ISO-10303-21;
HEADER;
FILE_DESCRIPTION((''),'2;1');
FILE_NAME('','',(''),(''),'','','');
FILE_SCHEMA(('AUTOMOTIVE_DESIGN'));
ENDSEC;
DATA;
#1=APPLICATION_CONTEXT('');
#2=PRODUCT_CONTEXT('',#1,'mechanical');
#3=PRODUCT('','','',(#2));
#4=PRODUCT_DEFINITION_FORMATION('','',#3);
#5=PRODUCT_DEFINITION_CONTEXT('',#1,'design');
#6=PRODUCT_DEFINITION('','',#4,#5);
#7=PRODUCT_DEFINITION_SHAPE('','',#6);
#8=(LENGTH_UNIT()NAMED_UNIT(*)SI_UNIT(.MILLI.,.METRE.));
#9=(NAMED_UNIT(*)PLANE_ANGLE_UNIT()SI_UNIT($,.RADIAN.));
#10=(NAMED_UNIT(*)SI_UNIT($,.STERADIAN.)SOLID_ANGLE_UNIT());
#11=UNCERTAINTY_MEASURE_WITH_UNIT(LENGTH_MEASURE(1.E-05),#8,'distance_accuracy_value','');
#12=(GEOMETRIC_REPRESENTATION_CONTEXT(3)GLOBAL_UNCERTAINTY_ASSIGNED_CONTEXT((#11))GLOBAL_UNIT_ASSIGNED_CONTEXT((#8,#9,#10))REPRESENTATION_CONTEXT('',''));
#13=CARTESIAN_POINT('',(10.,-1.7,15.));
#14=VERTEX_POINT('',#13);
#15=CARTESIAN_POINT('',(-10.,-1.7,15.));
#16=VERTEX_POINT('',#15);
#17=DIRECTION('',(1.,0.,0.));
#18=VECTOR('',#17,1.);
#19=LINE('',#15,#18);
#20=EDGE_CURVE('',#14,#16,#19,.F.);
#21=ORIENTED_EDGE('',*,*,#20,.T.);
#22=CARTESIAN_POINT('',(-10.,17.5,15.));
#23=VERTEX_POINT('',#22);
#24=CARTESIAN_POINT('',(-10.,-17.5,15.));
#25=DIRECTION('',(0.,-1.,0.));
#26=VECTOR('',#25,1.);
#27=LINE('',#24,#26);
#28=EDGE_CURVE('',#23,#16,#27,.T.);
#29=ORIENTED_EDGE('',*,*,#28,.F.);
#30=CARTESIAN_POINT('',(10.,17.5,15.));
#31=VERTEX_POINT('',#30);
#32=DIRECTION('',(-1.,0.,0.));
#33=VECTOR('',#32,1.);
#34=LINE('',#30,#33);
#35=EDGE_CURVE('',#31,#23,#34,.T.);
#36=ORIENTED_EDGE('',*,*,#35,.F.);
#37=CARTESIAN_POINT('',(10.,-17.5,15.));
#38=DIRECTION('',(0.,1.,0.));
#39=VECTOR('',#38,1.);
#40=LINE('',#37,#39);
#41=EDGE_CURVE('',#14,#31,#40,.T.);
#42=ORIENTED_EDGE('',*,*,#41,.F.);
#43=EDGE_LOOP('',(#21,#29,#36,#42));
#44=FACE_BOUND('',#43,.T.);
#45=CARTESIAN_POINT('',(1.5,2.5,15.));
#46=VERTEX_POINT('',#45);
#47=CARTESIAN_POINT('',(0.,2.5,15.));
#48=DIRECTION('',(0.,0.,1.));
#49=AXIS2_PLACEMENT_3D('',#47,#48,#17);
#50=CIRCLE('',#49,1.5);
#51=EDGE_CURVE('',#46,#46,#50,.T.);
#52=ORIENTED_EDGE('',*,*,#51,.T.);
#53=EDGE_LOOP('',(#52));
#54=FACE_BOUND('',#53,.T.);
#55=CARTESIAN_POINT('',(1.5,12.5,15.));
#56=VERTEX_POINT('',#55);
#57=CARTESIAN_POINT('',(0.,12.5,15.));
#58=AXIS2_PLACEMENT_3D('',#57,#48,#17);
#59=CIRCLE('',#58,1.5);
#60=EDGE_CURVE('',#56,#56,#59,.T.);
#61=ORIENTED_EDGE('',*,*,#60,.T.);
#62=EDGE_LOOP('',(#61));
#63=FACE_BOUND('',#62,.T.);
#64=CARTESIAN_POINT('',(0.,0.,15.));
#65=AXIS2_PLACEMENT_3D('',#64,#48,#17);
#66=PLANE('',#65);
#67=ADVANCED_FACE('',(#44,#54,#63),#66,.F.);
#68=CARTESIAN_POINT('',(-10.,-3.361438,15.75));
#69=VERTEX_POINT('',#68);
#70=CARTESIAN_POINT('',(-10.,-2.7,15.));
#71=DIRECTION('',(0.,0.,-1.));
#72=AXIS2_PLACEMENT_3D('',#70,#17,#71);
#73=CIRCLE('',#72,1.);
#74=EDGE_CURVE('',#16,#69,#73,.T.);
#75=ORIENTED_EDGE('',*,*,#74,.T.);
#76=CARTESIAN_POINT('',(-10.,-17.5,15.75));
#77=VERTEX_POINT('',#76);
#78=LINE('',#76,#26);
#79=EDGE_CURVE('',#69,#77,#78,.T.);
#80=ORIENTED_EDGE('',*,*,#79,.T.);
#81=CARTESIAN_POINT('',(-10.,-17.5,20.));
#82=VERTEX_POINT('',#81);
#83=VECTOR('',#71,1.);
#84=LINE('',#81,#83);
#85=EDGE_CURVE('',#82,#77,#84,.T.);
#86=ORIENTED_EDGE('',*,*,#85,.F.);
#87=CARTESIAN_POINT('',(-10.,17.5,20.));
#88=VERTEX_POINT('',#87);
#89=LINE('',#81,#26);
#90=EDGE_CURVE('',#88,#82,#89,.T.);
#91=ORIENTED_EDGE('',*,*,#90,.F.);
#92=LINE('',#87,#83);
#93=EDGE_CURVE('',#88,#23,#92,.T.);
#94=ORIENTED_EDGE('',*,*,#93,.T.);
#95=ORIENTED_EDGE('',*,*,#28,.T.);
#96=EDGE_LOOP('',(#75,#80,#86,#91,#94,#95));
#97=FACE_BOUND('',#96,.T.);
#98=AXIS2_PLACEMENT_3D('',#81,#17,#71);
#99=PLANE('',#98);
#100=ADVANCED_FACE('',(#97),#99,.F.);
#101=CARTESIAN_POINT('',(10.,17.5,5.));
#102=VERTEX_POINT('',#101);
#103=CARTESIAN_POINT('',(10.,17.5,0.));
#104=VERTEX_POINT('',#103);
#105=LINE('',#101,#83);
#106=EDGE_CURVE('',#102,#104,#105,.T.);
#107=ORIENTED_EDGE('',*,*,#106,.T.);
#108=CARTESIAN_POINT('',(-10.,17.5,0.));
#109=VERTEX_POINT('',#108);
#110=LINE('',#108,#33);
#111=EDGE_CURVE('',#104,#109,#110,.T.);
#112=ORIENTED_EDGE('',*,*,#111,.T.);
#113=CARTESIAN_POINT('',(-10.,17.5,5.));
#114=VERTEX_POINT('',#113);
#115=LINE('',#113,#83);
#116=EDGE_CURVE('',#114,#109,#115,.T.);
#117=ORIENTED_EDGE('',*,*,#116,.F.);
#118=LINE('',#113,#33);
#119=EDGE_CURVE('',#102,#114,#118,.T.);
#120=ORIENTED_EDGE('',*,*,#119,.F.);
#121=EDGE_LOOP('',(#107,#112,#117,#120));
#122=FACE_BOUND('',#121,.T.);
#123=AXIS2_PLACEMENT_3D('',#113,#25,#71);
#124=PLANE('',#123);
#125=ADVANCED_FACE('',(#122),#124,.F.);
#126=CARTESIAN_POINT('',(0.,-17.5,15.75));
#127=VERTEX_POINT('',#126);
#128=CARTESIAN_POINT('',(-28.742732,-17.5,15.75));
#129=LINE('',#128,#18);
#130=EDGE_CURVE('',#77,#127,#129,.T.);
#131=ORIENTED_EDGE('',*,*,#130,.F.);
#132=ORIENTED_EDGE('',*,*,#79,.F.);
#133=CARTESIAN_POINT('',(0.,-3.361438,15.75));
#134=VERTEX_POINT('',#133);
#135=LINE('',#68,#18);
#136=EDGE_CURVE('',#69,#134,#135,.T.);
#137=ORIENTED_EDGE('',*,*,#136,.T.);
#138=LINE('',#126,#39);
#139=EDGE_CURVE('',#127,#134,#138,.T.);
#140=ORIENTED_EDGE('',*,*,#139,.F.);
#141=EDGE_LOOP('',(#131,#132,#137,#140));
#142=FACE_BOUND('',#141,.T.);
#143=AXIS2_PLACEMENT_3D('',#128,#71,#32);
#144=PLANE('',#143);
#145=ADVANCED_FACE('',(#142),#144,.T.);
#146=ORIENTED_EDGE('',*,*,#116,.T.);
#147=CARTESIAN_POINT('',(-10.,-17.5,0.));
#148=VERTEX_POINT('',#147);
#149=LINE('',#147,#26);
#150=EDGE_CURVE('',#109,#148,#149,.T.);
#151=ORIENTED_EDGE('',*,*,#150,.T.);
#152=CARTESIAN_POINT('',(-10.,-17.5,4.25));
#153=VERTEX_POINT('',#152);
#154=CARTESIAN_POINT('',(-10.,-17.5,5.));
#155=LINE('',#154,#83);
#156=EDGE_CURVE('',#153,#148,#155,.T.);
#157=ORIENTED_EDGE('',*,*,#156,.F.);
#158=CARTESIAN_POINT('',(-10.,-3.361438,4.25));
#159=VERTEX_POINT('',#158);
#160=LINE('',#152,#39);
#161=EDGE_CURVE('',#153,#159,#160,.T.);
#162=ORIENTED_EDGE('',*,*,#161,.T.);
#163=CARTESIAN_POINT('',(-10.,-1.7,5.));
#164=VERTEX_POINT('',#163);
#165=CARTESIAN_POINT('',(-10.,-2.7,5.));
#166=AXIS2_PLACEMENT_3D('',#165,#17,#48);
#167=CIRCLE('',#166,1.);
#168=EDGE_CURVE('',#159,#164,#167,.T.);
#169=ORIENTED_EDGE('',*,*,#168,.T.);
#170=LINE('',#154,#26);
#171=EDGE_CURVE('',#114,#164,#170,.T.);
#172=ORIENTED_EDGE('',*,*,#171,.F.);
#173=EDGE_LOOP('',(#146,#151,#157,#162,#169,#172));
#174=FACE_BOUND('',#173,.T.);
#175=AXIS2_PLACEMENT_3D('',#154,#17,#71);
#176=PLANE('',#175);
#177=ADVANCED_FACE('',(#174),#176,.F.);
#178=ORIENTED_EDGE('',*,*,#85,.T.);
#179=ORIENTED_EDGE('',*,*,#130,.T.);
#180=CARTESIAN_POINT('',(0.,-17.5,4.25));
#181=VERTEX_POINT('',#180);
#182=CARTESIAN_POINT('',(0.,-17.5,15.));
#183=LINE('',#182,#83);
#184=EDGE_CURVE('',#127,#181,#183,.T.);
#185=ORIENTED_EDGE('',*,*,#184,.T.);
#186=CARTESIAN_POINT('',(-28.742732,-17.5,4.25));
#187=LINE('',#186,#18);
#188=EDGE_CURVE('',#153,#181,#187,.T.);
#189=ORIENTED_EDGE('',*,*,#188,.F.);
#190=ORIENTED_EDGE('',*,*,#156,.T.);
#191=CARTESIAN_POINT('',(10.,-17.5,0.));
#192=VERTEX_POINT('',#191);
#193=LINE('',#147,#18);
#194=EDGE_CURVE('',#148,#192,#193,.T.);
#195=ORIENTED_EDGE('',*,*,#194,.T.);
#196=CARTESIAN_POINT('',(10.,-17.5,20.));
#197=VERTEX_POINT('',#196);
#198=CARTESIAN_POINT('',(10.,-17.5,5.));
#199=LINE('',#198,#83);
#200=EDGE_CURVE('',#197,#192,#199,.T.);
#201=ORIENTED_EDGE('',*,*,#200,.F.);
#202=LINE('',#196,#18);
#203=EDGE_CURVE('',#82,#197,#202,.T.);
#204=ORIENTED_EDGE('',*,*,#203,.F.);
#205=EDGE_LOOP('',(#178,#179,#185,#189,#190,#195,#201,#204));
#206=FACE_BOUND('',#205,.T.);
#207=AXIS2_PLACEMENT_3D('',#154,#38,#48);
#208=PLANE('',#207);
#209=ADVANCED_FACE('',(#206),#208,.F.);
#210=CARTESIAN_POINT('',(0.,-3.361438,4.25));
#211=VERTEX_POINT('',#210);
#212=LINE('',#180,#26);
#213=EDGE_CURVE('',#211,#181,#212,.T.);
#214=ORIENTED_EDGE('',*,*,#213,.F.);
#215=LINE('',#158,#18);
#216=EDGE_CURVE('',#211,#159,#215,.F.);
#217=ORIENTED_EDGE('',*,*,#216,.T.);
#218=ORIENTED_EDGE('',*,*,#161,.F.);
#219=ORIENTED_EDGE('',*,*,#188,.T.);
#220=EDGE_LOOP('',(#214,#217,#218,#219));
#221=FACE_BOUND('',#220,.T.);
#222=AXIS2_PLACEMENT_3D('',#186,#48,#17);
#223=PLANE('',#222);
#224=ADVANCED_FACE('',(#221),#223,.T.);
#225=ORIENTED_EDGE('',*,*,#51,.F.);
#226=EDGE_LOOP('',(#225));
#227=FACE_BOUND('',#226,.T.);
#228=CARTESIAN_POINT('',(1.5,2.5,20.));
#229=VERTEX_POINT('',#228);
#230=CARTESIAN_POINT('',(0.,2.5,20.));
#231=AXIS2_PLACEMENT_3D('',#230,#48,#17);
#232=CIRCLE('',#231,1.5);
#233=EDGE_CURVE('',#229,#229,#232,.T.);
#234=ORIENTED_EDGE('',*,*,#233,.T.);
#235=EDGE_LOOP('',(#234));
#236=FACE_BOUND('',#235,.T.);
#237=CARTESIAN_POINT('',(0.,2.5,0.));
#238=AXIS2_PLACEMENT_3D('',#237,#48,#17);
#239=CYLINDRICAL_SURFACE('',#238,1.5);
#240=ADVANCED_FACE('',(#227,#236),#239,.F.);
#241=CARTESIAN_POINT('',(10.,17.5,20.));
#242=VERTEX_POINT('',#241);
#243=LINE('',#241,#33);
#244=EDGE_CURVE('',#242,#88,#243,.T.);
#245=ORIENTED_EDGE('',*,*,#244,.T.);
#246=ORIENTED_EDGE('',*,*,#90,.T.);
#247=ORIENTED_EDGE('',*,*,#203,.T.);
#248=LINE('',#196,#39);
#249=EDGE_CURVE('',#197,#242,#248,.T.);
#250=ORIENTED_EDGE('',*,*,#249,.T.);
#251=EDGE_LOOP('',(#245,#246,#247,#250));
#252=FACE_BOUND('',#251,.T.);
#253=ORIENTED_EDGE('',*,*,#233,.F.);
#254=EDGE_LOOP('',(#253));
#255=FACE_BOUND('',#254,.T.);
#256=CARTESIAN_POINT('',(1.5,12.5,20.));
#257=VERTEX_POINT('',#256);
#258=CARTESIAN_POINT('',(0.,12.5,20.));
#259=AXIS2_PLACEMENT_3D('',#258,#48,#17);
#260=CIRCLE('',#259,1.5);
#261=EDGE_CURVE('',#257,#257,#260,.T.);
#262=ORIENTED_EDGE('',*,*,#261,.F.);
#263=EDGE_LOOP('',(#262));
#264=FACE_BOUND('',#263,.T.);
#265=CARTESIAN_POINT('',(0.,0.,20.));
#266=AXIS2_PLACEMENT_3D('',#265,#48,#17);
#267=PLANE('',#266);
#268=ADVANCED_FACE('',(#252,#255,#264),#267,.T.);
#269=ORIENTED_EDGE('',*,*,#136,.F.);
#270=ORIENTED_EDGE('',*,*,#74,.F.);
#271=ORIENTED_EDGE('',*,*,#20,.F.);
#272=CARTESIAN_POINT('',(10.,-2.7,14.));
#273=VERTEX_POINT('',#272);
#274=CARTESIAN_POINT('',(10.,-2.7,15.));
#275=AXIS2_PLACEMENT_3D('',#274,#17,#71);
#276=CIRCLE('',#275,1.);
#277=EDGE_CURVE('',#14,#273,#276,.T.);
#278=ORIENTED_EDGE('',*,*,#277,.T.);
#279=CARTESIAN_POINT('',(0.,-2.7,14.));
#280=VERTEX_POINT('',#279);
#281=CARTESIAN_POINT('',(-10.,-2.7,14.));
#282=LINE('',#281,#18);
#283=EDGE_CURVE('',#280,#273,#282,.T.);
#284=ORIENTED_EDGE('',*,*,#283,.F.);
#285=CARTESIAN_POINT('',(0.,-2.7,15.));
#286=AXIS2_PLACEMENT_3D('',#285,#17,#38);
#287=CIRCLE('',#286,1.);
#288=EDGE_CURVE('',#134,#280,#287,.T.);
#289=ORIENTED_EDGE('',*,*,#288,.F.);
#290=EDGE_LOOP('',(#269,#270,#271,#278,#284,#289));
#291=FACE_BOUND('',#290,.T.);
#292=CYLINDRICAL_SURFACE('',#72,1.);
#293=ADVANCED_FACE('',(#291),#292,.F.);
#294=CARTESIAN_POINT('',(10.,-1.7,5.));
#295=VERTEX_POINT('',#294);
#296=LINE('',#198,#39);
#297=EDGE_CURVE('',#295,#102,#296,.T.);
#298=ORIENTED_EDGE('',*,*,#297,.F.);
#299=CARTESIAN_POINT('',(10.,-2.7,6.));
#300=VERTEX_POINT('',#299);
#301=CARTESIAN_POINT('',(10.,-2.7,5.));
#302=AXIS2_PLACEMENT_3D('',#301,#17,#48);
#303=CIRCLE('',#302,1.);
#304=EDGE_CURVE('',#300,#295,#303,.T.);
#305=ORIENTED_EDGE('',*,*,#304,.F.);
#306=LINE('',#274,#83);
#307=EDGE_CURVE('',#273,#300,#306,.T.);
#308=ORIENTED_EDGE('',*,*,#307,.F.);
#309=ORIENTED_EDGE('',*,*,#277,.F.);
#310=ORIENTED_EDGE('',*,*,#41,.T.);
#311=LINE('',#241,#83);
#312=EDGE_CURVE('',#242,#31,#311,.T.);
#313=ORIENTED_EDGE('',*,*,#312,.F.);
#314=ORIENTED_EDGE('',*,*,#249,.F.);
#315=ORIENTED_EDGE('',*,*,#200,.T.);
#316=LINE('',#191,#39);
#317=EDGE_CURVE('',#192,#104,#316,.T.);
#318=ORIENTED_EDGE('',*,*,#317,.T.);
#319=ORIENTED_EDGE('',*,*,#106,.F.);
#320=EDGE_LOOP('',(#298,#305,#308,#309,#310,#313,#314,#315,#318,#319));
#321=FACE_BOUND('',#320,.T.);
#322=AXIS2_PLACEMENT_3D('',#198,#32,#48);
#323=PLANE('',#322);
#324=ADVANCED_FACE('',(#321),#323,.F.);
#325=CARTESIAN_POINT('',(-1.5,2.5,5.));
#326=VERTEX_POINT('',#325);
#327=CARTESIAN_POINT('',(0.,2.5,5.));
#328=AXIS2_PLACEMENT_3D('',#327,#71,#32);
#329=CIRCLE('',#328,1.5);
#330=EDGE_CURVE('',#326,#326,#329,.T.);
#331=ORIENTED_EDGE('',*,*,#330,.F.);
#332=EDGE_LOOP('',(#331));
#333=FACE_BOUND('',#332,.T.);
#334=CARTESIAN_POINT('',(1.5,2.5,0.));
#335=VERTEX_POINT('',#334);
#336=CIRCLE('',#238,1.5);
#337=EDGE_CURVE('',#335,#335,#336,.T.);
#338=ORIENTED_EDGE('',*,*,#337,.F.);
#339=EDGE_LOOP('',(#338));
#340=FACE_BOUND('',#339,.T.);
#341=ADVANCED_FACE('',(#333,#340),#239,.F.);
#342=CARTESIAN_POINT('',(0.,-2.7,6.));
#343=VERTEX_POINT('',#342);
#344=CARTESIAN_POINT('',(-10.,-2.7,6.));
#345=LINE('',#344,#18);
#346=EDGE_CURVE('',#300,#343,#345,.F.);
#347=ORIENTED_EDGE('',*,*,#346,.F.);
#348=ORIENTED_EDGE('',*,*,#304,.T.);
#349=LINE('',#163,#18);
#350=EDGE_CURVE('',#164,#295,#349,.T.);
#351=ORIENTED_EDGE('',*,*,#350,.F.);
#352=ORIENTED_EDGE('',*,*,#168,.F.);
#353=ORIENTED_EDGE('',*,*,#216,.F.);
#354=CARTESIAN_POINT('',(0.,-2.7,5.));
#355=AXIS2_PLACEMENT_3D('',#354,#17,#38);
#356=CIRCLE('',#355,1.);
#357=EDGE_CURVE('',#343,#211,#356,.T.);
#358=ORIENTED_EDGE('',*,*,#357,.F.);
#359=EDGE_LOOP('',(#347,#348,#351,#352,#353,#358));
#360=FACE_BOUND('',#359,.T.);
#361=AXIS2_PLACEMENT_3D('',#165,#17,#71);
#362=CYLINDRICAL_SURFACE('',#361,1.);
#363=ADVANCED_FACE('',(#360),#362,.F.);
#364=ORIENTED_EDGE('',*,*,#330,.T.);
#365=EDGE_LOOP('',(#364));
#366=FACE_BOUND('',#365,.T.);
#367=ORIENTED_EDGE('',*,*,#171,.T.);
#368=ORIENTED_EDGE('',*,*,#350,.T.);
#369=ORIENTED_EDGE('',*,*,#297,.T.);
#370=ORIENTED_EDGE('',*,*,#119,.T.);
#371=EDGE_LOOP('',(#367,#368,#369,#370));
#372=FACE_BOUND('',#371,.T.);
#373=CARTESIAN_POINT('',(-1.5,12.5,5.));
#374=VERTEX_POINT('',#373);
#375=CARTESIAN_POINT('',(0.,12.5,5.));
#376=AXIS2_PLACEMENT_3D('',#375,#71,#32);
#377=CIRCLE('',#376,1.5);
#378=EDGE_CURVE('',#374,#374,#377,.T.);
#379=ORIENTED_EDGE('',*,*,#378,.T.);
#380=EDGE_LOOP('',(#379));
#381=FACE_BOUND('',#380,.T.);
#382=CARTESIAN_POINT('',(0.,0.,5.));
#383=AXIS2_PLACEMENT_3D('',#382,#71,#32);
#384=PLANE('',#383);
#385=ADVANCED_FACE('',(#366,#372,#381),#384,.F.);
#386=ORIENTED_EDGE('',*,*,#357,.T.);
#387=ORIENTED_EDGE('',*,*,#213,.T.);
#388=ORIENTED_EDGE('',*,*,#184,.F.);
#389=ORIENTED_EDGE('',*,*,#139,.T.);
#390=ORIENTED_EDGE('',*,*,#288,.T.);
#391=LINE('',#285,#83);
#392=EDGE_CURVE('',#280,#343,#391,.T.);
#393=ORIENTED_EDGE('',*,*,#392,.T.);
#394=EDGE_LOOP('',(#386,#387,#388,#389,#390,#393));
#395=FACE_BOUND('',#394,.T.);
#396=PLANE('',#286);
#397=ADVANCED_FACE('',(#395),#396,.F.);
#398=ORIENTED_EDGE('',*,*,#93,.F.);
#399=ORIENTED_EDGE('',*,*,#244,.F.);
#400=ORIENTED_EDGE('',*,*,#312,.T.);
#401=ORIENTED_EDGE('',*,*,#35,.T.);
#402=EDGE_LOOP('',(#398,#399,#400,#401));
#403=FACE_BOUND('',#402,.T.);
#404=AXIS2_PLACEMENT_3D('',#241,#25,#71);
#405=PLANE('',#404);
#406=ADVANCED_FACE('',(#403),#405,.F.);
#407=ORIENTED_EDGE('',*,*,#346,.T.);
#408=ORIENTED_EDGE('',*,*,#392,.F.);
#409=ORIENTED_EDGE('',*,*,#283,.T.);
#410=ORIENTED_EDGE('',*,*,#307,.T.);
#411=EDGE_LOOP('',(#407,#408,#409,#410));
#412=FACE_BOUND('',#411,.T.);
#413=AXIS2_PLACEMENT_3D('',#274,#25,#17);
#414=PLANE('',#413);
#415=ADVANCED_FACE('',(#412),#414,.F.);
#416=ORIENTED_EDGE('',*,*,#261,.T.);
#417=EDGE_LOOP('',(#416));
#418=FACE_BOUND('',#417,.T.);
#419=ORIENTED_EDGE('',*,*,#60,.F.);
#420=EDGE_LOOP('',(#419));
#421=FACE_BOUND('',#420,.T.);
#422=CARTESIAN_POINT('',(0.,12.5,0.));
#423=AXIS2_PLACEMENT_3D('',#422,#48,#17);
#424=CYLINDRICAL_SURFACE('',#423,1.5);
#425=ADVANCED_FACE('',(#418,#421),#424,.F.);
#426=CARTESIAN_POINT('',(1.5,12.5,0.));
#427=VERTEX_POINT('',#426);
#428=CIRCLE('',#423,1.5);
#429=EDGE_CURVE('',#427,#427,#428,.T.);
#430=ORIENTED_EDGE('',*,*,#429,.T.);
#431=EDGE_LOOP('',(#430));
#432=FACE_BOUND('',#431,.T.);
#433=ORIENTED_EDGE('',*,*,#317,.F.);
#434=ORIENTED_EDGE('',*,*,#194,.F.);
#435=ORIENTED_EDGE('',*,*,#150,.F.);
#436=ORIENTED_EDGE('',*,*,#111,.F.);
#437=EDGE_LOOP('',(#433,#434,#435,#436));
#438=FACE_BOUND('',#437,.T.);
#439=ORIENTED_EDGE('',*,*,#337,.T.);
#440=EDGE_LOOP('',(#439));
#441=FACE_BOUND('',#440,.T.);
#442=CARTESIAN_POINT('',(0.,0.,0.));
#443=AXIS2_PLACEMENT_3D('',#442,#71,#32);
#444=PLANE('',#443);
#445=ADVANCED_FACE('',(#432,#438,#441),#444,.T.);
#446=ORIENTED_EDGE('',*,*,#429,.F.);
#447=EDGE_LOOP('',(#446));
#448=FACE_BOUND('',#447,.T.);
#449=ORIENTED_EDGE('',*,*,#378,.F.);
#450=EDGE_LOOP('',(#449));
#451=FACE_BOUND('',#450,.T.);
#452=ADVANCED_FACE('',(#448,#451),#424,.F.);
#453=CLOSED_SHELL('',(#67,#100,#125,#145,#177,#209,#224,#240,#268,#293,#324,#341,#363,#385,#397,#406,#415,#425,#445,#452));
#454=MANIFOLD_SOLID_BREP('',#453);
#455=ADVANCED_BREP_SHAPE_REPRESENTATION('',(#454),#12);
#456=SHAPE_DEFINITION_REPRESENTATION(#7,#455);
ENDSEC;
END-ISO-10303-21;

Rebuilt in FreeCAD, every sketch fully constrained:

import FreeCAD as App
import Part
import Sketcher


def add_polygon(sketch, points):
    """Adds a closed chain of lines whose ends are joined by coincident constraints."""
    first, n = sketch.GeometryCount, len(points)
    for a, b in zip(points, points[1:] + points[:1]):
        sketch.addGeometry(Part.LineSegment(App.Vector(*a, 0), App.Vector(*b, 0)), False)
    for i in range(n):
        sketch.addConstraint(Sketcher.Constraint("Coincident", first + i, 2, first + (i + 1) % n, 1))

doc = App.newDocument("Part")
body = doc.addObject("PartDesign::Body", "Body")

sketch1 = body.newObject("Sketcher::SketchObject", "Sketch")
sketch1.AttachmentSupport = (doc.getObject("XY_Plane"), [""])
sketch1.MapMode = "FlatFace"
add_polygon(sketch1, [(-10, 18), (-10, -18), (10, -18), (10, 18)])
sketch1.addConstraint(Sketcher.Constraint("Vertical", 0))
sketch1.addConstraint(Sketcher.Constraint("Horizontal", 1))
sketch1.addConstraint(Sketcher.Constraint("Vertical", 2))
sketch1.addConstraint(Sketcher.Constraint("Horizontal", 3))
sketch1.addConstraint(Sketcher.Constraint("Symmetric", 0, 2, 2, 2, -1, 1))
sketch1.addConstraint(Sketcher.Constraint("DistanceX", 1, 1, 1, 2, 20.0))
sketch1.addConstraint(Sketcher.Constraint("DistanceY", 0, 2, 0, 1, 35.0))
pad1 = body.newObject("PartDesign::Pad", "Pad")
pad1.Profile = sketch1
pad1.Length = 5

sketch2 = body.newObject("Sketcher::SketchObject", "Sketch001")
sketch2.AttachmentSupport = (doc.getObject("XY_Plane"), [""])
sketch2.MapMode = "FlatFace"
sketch2.AttachmentOffset = App.Placement(App.Vector(0, 0, 5), App.Rotation())
add_polygon(sketch2, [(0, -3), (0, -18), (10, -18), (10, -3)])
sketch2.addConstraint(Sketcher.Constraint("Vertical", 0))
sketch2.addConstraint(Sketcher.Constraint("Horizontal", 1))
sketch2.addConstraint(Sketcher.Constraint("Vertical", 2))
sketch2.addConstraint(Sketcher.Constraint("Horizontal", 3))
sketch2.addConstraint(Sketcher.Constraint("PointOnObject", 0, 2, -2))
sketch2.addConstraint(Sketcher.Constraint("DistanceX", 1, 1, 1, 2, 10.0))
sketch2.addConstraint(Sketcher.Constraint("DistanceY", 0, 2, 0, 1, 14.8))
sketch2.addConstraint(Sketcher.Constraint("DistanceY", 0, 2, -1, 1, 17.5))
pad2 = body.newObject("PartDesign::Pad", "Pad001")
pad2.Profile = sketch2
pad2.Length = 10

sketch3 = body.newObject("Sketcher::SketchObject", "Sketch002")
sketch3.AttachmentSupport = (doc.getObject("XY_Plane"), [""])
sketch3.MapMode = "FlatFace"
sketch3.AttachmentOffset = App.Placement(App.Vector(0, 0, 15), App.Rotation())
add_polygon(sketch3, [(-10, 18), (-10, -18), (10, -18), (10, 18)])
sketch3.addConstraint(Sketcher.Constraint("Vertical", 0))
sketch3.addConstraint(Sketcher.Constraint("Horizontal", 1))
sketch3.addConstraint(Sketcher.Constraint("Vertical", 2))
sketch3.addConstraint(Sketcher.Constraint("Horizontal", 3))
sketch3.addConstraint(Sketcher.Constraint("Symmetric", 0, 2, 2, 2, -1, 1))
sketch3.addConstraint(Sketcher.Constraint("DistanceX", 1, 1, 1, 2, 20.0))
sketch3.addConstraint(Sketcher.Constraint("DistanceY", 0, 2, 0, 1, 35.0))
pad3 = body.newObject("PartDesign::Pad", "Pad002")
pad3.Profile = sketch3
pad3.Length = 5

sketch4 = body.newObject("Sketcher::SketchObject", "Sketch003")
sketch4.AttachmentSupport = (doc.getObject("YZ_Plane"), [""])
sketch4.MapMode = "FlatFace"
sketch4.AttachmentOffset = App.Placement(App.Vector(0, 0, 10), App.Rotation())
sketch4.addGeometry(Part.Circle(App.Vector(-2.7, 15, 0), App.Vector(0, 0, 1), 1), False)
sketch4.addGeometry(Part.Circle(App.Vector(-2.7, 5, 0), App.Vector(0, 0, 1), 1), False)
sketch4.addConstraint(Sketcher.Constraint("Equal", 0, 1))
sketch4.addConstraint(Sketcher.Constraint("Vertical", 0, 3, 1, 3))
sketch4.addConstraint(Sketcher.Constraint("Diameter", 0, 2.0))
sketch4.addConstraint(Sketcher.Constraint("DistanceY", -1, 1, 0, 3, 15.0))
sketch4.addConstraint(Sketcher.Constraint("DistanceY", -1, 1, 1, 3, 5.0))
sketch4.addConstraint(Sketcher.Constraint("DistanceX", 0, 3, -1, 1, 2.7))
pocket1 = body.newObject("PartDesign::Pocket", "Pocket")
pocket1.Profile = sketch4
pocket1.Type = "ThroughAll"

sketch5 = body.newObject("Sketcher::SketchObject", "Sketch004")
sketch5.AttachmentSupport = (doc.getObject("XY_Plane"), [""])
sketch5.MapMode = "FlatFace"
sketch5.AttachmentOffset = App.Placement(App.Vector(0, 0, 20), App.Rotation())
sketch5.addGeometry(Part.Circle(App.Vector(0, 12.5, 0), App.Vector(0, 0, 1), 1.5), False)
sketch5.addGeometry(Part.Circle(App.Vector(0, 2.5, 0), App.Vector(0, 0, 1), 1.5), False)
sketch5.addConstraint(Sketcher.Constraint("Equal", 0, 1))
sketch5.addConstraint(Sketcher.Constraint("PointOnObject", 0, 3, -2))
sketch5.addConstraint(Sketcher.Constraint("PointOnObject", 1, 3, -2))
sketch5.addConstraint(Sketcher.Constraint("Diameter", 0, 3.0))
sketch5.addConstraint(Sketcher.Constraint("DistanceY", 1, 3, 0, 3, 10.0))
sketch5.addConstraint(Sketcher.Constraint("DistanceY", -1, 1, 0, 3, 12.5))
pocket2 = body.newObject("PartDesign::Pocket", "Pocket001")
pocket2.Profile = sketch5
pocket2.Type = "ThroughAll"

sketch6 = body.newObject("Sketcher::SketchObject", "Sketch005")
sketch6.AttachmentSupport = (doc.getObject("YZ_Plane"), [""])
sketch6.MapMode = "FlatFace"
add_polygon(sketch6, [(-3, 4), (-18, 4), (-18, 16), (-3, 16)])
sketch6.addConstraint(Sketcher.Constraint("Horizontal", 0))
sketch6.addConstraint(Sketcher.Constraint("Vertical", 1))
sketch6.addConstraint(Sketcher.Constraint("Horizontal", 2))
sketch6.addConstraint(Sketcher.Constraint("Vertical", 3))
sketch6.addConstraint(Sketcher.Constraint("DistanceX", 0, 2, 0, 1, 14.8))
sketch6.addConstraint(Sketcher.Constraint("DistanceY", 1, 1, 1, 2, 11.5))
sketch6.addConstraint(Sketcher.Constraint("DistanceX", 0, 2, -1, 1, 17.5))
sketch6.addConstraint(Sketcher.Constraint("DistanceY", -1, 1, 0, 2, 4.25))
pocket3 = body.newObject("PartDesign::Pocket", "Pocket002")
pocket3.Profile = sketch6
pocket3.Length = 10

doc.recompute()
